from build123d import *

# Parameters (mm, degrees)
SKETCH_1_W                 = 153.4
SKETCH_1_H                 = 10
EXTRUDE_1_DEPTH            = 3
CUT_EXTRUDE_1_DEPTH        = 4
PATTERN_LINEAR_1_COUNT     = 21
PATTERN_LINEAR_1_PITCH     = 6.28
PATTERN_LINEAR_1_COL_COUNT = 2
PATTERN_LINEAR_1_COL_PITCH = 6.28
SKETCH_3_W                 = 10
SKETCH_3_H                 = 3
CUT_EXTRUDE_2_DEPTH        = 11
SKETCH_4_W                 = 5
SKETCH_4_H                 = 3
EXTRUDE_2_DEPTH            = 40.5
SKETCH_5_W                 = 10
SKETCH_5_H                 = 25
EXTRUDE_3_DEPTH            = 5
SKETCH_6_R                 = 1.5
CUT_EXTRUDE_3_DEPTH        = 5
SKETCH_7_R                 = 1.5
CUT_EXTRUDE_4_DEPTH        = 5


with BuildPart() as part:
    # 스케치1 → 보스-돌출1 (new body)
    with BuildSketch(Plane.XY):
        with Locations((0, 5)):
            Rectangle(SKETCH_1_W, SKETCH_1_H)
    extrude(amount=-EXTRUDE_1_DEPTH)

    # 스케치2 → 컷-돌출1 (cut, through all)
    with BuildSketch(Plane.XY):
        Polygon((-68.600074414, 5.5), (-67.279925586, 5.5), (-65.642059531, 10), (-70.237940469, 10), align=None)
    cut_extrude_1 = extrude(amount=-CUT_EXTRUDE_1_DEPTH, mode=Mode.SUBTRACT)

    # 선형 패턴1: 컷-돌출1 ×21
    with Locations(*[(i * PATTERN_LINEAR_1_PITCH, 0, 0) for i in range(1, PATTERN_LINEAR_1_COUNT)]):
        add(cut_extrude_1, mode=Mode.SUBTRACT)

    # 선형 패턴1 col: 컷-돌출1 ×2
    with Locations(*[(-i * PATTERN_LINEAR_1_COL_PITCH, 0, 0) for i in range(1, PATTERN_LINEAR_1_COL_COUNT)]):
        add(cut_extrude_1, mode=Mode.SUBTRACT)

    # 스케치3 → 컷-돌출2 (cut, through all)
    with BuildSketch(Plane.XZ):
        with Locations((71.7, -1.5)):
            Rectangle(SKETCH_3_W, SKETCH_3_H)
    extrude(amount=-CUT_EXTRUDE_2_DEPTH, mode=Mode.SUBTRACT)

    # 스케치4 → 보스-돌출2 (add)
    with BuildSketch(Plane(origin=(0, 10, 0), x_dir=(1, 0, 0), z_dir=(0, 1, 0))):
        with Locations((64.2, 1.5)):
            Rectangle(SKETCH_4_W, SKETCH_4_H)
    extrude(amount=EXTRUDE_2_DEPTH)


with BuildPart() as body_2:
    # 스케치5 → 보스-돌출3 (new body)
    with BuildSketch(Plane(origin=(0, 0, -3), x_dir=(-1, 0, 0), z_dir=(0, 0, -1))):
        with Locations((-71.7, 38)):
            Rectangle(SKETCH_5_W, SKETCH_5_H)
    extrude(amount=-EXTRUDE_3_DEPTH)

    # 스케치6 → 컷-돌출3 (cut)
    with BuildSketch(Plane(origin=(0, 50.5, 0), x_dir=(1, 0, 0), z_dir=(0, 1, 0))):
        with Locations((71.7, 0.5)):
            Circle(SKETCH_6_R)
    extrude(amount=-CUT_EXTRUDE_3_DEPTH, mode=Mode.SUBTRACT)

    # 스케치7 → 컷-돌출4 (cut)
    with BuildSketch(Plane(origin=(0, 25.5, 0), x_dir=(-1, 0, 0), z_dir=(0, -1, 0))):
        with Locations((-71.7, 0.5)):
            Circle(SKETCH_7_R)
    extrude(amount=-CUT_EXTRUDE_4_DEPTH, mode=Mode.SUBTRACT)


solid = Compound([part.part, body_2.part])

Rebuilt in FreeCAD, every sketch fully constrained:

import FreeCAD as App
import Part
import Sketcher
Q = App.Units.Quantity

doc = App.newDocument("Part")
body = doc.addObject("PartDesign::Body", "Body")

# Sketch on XY plane
sketch1 = body.newObject("Sketcher::SketchObject", "Sketch")
sketch1.AttachmentSupport = (doc.getObject("XY_Plane"), [""])
sketch1.MapMode = "FlatFace"
sketch1.addGeometry([
    Part.LineSegment(App.Vector(-77, 10, 0), App.Vector(-77, 0, 0)),
    Part.LineSegment(App.Vector(-77, 0, 0), App.Vector(77, 0, 0)),
    Part.LineSegment(App.Vector(77, 0, 0), App.Vector(77, 10, 0)),
    Part.LineSegment(App.Vector(77, 10, 0), App.Vector(-77, 10, 0)),
], False)
sketch1.addConstraint([
    Sketcher.Constraint("Coincident", 0, 2, 1, 1),
    Sketcher.Constraint("Coincident", 1, 2, 2, 1),
    Sketcher.Constraint("Coincident", 2, 2, 3, 1),
    Sketcher.Constraint("Coincident", 3, 2, 0, 1),
    Sketcher.Constraint("Vertical", 0),
    Sketcher.Constraint("Horizontal", 1),
    Sketcher.Constraint("Vertical", 2),
    Sketcher.Constraint("Horizontal", 3),
    Sketcher.Constraint("Symmetric", 0, 2, 1, 2, -1, 1),
    Sketcher.Constraint("DistanceY", 0, 2, 0, 1, 10.0),
    Sketcher.Constraint("DistanceX", 1, 1, 1, 2, 153.4),
])
pad1 = body.newObject("PartDesign::Pad", "Pad")
pad1.Profile = sketch1
pad1.Length = 3
pad1.Reversed = True

# Sketch on XY plane
sketch2 = body.newObject("Sketcher::SketchObject", "Sketch001")
sketch2.AttachmentSupport = (doc.getObject("XY_Plane"), [""])
sketch2.MapMode = "FlatFace"
sketch2.addGeometry([
    Part.LineSegment(App.Vector(-68.6, 5.5, 0), App.Vector(-67.3, 5.5, 0)),
    Part.LineSegment(App.Vector(-67.3, 5.5, 0), App.Vector(-65.6, 10, 0)),
    Part.LineSegment(App.Vector(-65.6, 10, 0), App.Vector(-70.2, 10, 0)),
    Part.LineSegment(App.Vector(-70.2, 10, 0), App.Vector(-68.6, 5.5, 0)),
], False)
sketch2.addConstraint([
    Sketcher.Constraint("Coincident", 0, 2, 1, 1),
    Sketcher.Constraint("Coincident", 1, 2, 2, 1),
    Sketcher.Constraint("Coincident", 2, 2, 3, 1),
    Sketcher.Constraint("Coincident", 3, 2, 0, 1),
    Sketcher.Constraint("Horizontal", 0),
    Sketcher.Constraint("Horizontal", 2),
    Sketcher.Constraint("Equal", 1, 3),
    Sketcher.Constraint("Angle", 1, Q("70 deg")),
    Sketcher.Constraint("DistanceY", -1, 1, 1, 2, 10.0),
    Sketcher.Constraint("DistanceY", -1, 1, 0, 2, 5.5),
    Sketcher.Constraint("DistanceX", 0, 1, 0, 2, 1.320149),
    Sketcher.Constraint("DistanceX", 1, 2, -1, 1, 65.64206),
])
pocket1 = body.newObject("PartDesign::Pocket", "Pocket")
pocket1.Profile = sketch2
pocket1.Type = "ThroughAll"
doc.recompute()

linearpattern = body.newObject("PartDesign::LinearPattern", "LinearPattern")
linearpattern.Originals = [pocket1]
linearpattern.Direction = (doc.getObject("X_Axis"), [""])
linearpattern.Mode = "offset"
linearpattern.Offset = 6.28
linearpattern.Occurrences = 21
body.Tip = linearpattern
doc.recompute()

linearpattern2 = body.newObject("PartDesign::LinearPattern", "LinearPattern001")
linearpattern2.Originals = [pocket1]
linearpattern2.Direction = (doc.getObject("X_Axis"), [""])
linearpattern2.Mode = "offset"
linearpattern2.Offset = 6.28
linearpattern2.Occurrences = 2
linearpattern2.Reversed = True
body.Tip = linearpattern2

# Sketch on XZ plane
sketch3 = body.newObject("Sketcher::SketchObject", "Sketch002")
sketch3.AttachmentSupport = (doc.getObject("XZ_Plane"), [""])
sketch3.MapMode = "FlatFace"
sketch3.addGeometry([
    Part.LineSegment(App.Vector(66.7, 0, 0), App.Vector(66.7, -3, 0)),
    Part.LineSegment(App.Vector(66.7, -3, 0), App.Vector(76.7, -3, 0)),
    Part.LineSegment(App.Vector(76.7, -3, 0), App.Vector(76.7, 0, 0)),
    Part.LineSegment(App.Vector(76.7, 0, 0), App.Vector(66.7, 0, 0)),
], False)
sketch3.addConstraint([
    Sketcher.Constraint("Coincident", 0, 2, 1, 1),
    Sketcher.Constraint("Coincident", 1, 2, 2, 1),
    Sketcher.Constraint("Coincident", 2, 2, 3, 1),
    Sketcher.Constraint("Coincident", 3, 2, 0, 1),
    Sketcher.Constraint("Vertical", 0),
    Sketcher.Constraint("Horizontal", 1),
    Sketcher.Constraint("Vertical", 2),
    Sketcher.Constraint("Horizontal", 3),
    Sketcher.Constraint("PointOnObject", 2, 2, -1),
    Sketcher.Constraint("DistanceX", 1, 1, 1, 2, 10.0),
    Sketcher.Constraint("DistanceY", 0, 2, 0, 1, 3.0),
    Sketcher.Constraint("DistanceX", -1, 1, 0, 2, 66.7),
])
pocket2 = body.newObject("PartDesign::Pocket", "Pocket001")
pocket2.Profile = sketch3
pocket2.Type = "ThroughAll"

# Sketch on XZ plane
sketch4 = body.newObject("Sketcher::SketchObject", "Sketch003")
sketch4.AttachmentSupport = (doc.getObject("XZ_Plane"), [""])
sketch4.MapMode = "FlatFace"
sketch4.AttachmentOffset = App.Placement(App.Vector(0, 0, -10), App.Rotation())
sketch4.addGeometry([
    Part.LineSegment(App.Vector(61.7, -3, 0), App.Vector(61.7, 0, 0)),
    Part.LineSegment(App.Vector(61.7, 0, 0), App.Vector(66.7, 0, 0)),
    Part.LineSegment(App.Vector(66.7, 0, 0), App.Vector(66.7, -3, 0)),
    Part.LineSegment(App.Vector(66.7, -3, 0), App.Vector(61.7, -3, 0)),
], False)
sketch4.addConstraint([
    Sketcher.Constraint("Coincident", 0, 2, 1, 1),
    Sketcher.Constraint("Coincident", 1, 2, 2, 1),
    Sketcher.Constraint("Coincident", 2, 2, 3, 1),
    Sketcher.Constraint("Coincident", 3, 2, 0, 1),
    Sketcher.Constraint("Vertical", 0),
    Sketcher.Constraint("Horizontal", 1),
    Sketcher.Constraint("Vertical", 2),
    Sketcher.Constraint("Horizontal", 3),
    Sketcher.Constraint("PointOnObject", 0, 2, -1),
    Sketcher.Constraint("DistanceX", 1, 1, 1, 2, 5.0),
    Sketcher.Constraint("DistanceY", 0, 1, 0, 2, 3.0),
    Sketcher.Constraint("DistanceX", -1, 1, 0, 2, 61.7),
])
pad2 = body.newObject("PartDesign::Pad", "Pad001")
pad2.Profile = sketch4
pad2.Length = 40.5
pad2.Reversed = True
body2 = doc.addObject("PartDesign::Body", "Body001")

# Sketch on XY plane
sketch5 = body2.newObject("Sketcher::SketchObject", "Sketch004")
sketch5.AttachmentSupport = (doc.getObject("XY_Plane001"), [""])
sketch5.MapMode = "FlatFace"
sketch5.AttachmentOffset = App.Placement(App.Vector(0, 0, -3), App.Rotation())
sketch5.addGeometry([
    Part.LineSegment(App.Vector(77, 50, 0), App.Vector(77, 26, 0)),
    Part.LineSegment(App.Vector(77, 26, 0), App.Vector(67, 26, 0)),
    Part.LineSegment(App.Vector(67, 26, 0), App.Vector(67, 50, 0)),
    Part.LineSegment(App.Vector(67, 50, 0), App.Vector(77, 50, 0)),
], False)
sketch5.addConstraint([
    Sketcher.Constraint("Coincident", 0, 2, 1, 1),
    Sketcher.Constraint("Coincident", 1, 2, 2, 1),
    Sketcher.Constraint("Coincident", 2, 2, 3, 1),
    Sketcher.Constraint("Coincident", 3, 2, 0, 1),
    Sketcher.Constraint("Vertical", 0),
    Sketcher.Constraint("Horizontal", 1),
    Sketcher.Constraint("Vertical", 2),
    Sketcher.Constraint("Horizontal", 3),
    Sketcher.Constraint("DistanceX", 1, 2, 1, 1, 10.0),
    Sketcher.Constraint("DistanceY", 0, 2, 0, 1, 25.0),
    Sketcher.Constraint("DistanceX", -1, 1, 0, 2, 76.7),
    Sketcher.Constraint("DistanceY", -1, 1, 0, 2, 25.5),
])
pad3 = body2.newObject("PartDesign::Pad", "Pad002")
pad3.Profile = sketch5
pad3.Length = 5

# Sketch on XZ plane
sketch6 = body2.newObject("Sketcher::SketchObject", "Sketch005")
sketch6.AttachmentSupport = (doc.getObject("XZ_Plane001"), [""])
sketch6.MapMode = "FlatFace"
sketch6.AttachmentOffset = App.Placement(App.Vector(0, 0, -50.5), App.Rotation())
sketch6.addGeometry(Part.Circle(App.Vector(71.7, -0.5, 0), App.Vector(0, 0, 1), 1.5), False)
sketch6.addConstraint([
    Sketcher.Constraint("Diameter", 0, 3.0),
    Sketcher.Constraint("DistanceX", -1, 1, 0, 3, 71.7),
    Sketcher.Constraint("DistanceY", 0, 3, -1, 1, 0.5),
])
pocket3 = body2.newObject("PartDesign::Pocket", "Pocket002")
pocket3.Profile = sketch6
pocket3.Length = 5
pocket3.Reversed = True

# Sketch on XZ plane
sketch7 = body2.newObject("Sketcher::SketchObject", "Sketch006")
sketch7.AttachmentSupport = (doc.getObject("XZ_Plane001"), [""])
sketch7.MapMode = "FlatFace"
sketch7.AttachmentOffset = App.Placement(App.Vector(0, 0, -25.5), App.Rotation())
sketch7.addGeometry(Part.Circle(App.Vector(71.7, -0.5, 0), App.Vector(0, 0, 1), 1.5), False)
sketch7.addConstraint([
    Sketcher.Constraint("Diameter", 0, 3.0),
    Sketcher.Constraint("DistanceX", -1, 1, 0, 3, 71.7),
    Sketcher.Constraint("DistanceY", 0, 3, -1, 1, 0.5),
])
pocket4 = body2.newObject("PartDesign::Pocket", "Pocket003")
pocket4.Profile = sketch7
pocket4.Length = 5

doc.recompute()
